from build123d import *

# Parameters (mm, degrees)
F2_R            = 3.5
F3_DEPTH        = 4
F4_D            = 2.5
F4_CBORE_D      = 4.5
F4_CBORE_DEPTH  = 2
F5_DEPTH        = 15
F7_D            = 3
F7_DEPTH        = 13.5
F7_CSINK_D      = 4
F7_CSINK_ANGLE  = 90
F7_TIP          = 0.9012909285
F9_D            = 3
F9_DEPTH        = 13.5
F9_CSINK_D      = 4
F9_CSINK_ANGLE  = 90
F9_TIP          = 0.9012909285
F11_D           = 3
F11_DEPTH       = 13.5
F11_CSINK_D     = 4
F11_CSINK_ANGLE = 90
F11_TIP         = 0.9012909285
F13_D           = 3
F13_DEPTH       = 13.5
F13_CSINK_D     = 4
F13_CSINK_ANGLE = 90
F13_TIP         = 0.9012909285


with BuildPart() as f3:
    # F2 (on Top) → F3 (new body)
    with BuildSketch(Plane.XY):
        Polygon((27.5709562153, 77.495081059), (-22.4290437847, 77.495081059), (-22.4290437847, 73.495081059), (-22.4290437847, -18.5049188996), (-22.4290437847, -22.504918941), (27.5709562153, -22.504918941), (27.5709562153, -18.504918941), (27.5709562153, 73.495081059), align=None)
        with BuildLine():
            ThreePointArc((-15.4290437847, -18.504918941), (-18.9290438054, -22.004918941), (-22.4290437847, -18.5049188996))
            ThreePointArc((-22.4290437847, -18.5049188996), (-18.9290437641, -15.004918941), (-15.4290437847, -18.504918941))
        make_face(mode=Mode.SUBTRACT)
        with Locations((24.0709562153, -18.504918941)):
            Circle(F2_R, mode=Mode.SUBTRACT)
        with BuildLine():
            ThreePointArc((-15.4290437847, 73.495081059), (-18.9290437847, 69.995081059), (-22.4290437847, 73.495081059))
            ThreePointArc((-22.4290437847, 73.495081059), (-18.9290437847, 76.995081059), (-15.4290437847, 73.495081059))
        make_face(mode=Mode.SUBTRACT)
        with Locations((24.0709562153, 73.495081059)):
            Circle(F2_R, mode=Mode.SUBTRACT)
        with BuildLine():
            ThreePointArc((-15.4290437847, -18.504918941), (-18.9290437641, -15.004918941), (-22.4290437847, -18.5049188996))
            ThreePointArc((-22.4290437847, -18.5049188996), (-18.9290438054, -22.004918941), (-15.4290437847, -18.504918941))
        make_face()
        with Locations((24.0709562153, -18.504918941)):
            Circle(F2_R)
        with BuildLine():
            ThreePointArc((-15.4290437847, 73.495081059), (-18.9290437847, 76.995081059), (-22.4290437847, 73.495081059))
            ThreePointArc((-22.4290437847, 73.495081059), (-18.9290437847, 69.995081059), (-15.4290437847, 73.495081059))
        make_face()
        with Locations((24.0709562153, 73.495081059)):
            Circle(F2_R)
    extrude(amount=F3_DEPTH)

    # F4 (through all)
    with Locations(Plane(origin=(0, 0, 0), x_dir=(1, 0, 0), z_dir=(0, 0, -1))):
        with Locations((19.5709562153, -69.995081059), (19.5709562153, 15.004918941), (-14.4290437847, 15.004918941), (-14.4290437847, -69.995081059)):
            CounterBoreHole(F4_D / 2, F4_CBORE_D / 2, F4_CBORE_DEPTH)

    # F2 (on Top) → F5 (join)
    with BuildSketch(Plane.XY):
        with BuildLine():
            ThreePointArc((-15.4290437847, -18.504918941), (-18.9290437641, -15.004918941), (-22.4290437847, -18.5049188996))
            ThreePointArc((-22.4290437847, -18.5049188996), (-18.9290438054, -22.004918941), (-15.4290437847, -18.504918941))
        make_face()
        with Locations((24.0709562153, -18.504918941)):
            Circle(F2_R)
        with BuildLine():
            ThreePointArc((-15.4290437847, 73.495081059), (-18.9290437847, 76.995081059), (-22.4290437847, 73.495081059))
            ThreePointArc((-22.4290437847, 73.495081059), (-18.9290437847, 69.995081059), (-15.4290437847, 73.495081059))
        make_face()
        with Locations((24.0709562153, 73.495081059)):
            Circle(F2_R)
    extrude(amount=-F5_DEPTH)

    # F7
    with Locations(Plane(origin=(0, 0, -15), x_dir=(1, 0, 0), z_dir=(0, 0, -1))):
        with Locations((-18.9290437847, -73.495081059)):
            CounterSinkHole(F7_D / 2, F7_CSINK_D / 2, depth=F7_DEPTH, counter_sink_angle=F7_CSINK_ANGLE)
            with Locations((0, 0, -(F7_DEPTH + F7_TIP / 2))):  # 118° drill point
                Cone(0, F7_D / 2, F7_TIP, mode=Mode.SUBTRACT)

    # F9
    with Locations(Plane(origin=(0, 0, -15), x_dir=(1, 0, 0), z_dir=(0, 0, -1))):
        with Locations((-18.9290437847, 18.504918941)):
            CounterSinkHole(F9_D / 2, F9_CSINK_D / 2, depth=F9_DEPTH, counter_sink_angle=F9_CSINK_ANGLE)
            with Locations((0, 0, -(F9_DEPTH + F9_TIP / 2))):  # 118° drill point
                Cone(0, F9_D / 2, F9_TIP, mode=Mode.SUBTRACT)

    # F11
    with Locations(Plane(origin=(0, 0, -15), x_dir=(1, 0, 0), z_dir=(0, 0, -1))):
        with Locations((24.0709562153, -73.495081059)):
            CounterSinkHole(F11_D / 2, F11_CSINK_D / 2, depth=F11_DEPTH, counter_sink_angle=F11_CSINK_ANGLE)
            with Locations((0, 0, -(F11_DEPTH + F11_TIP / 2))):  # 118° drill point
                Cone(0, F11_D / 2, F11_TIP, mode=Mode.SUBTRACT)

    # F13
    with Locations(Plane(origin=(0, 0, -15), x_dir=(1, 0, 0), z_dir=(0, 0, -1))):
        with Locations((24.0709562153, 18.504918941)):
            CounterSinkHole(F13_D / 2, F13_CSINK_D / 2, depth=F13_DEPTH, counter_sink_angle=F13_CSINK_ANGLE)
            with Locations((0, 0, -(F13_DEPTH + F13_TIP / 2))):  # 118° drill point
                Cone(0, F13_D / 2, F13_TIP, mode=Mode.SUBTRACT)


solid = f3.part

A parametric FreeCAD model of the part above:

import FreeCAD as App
import Part
import Sketcher

V = App.Vector
Q = App.Units.Quantity


def add_polygon(sketch, points):
    """Adds a closed chain of lines whose ends are joined by coincident constraints."""
    first, n = sketch.GeometryCount, len(points)
    for a, b in zip(points, points[1:] + points[:1]):
        sketch.addGeometry(Part.LineSegment(App.Vector(*a, 0), App.Vector(*b, 0)), False)
    for i in range(n):
        sketch.addConstraint(Sketcher.Constraint("Coincident", first + i, 2, first + (i + 1) % n, 1))

doc = App.newDocument("Part")
body = doc.addObject("PartDesign::Body", "Body")

# Sketch on XY plane
sketch1 = body.newObject("Sketcher::SketchObject", "Sketch")
sketch1.AttachmentSupport = (doc.getObject("XY_Plane"), [""])
sketch1.MapMode = "FlatFace"
add_polygon(sketch1, [(28, -23), (28, 77), (-22, 77), (-22, -23)])  # lines 0-3
sketch1.addConstraint(Sketcher.Constraint("Vertical", 0))
sketch1.addConstraint(Sketcher.Constraint("Horizontal", 1))
sketch1.addConstraint(Sketcher.Constraint("Vertical", 2))
sketch1.addConstraint(Sketcher.Constraint("Horizontal", 3))
sketch1.addConstraint(Sketcher.Constraint("DistanceX", 1, 2, 1, 1, Q("50 mm")))
sketch1.addConstraint(Sketcher.Constraint("DistanceY", 0, 1, 0, 2, Q("100 mm")))
sketch1.addConstraint(Sketcher.Constraint("DistanceY", -1, 1, 0, 2, Q("77.495081 mm")))
sketch1.addConstraint(Sketcher.Constraint("DistanceX", -1, 1, 0, 2, Q("27.570956 mm")))
pad1 = body.newObject("PartDesign::Pad", "Pad")
pad1.Profile = sketch1
pad1.Length = 4

# Sketch on XY plane
sketch2 = body.newObject("Sketcher::SketchObject", "Sketch001")
sketch2.AttachmentSupport = (doc.getObject("XY_Plane"), [""])
sketch2.MapMode = "FlatFace"
sketch2.addGeometry(Part.Circle(V(19.6, 70, 0), V(0, 0, 1), 1.2), False)
sketch2.addGeometry(Part.Circle(V(19.6, -15, 0), V(0, 0, 1), 1.2), False)
sketch2.addGeometry(Part.Circle(V(-14.4, -15, 0), V(0, 0, 1), 1.2), False)
sketch2.addGeometry(Part.Circle(V(-14.4, 70, 0), V(0, 0, 1), 1.2), False)
sketch2.addConstraint(Sketcher.Constraint("Equal", 0, 1))
sketch2.addConstraint(Sketcher.Constraint("Equal", 1, 2))
sketch2.addConstraint(Sketcher.Constraint("Equal", 2, 3))
sketch2.addConstraint(Sketcher.Constraint("Horizontal", 1, 3, 2, 3))
sketch2.addConstraint(Sketcher.Constraint("Horizontal", 0, 3, 3, 3))
sketch2.addConstraint(Sketcher.Constraint("Vertical", 0, 3, 1, 3))
sketch2.addConstraint(Sketcher.Constraint("Vertical", 2, 3, 3, 3))
sketch2.addConstraint(Sketcher.Constraint("Diameter", 0, Q("2.5 mm")))
sketch2.addConstraint(Sketcher.Constraint("DistanceY", 1, 3, 0, 3, Q("85 mm")))
sketch2.addConstraint(Sketcher.Constraint("DistanceX", 2, 3, 1, 3, Q("34 mm")))
sketch2.addConstraint(Sketcher.Constraint("DistanceY", -1, 1, 0, 3, Q("69.995081 mm")))
sketch2.addConstraint(Sketcher.Constraint("DistanceX", -1, 1, 0, 3, Q("19.570956 mm")))
doc.recompute()
hole = body.newObject("PartDesign::Hole", "Hole")
hole.Profile = sketch2
hole.ThreadType = "None"
hole.Diameter = 2.5
hole.DepthType = "ThroughAll"
hole.HoleCutType = "Counterbore"
hole.HoleCutDiameter = 4.5
hole.HoleCutDepth = 2
hole.Reversed = True

# Sketch on XY plane
sketch3 = body.newObject("Sketcher::SketchObject", "Sketch002")
sketch3.AttachmentSupport = (doc.getObject("XY_Plane"), [""])
sketch3.MapMode = "FlatFace"
sketch3.addGeometry(Part.Circle(V(-18.9, -18.5, 0), V(0, 0, 1), 3.5), False)
sketch3.addGeometry(Part.Circle(V(24.1, -18.5, 0), V(0, 0, 1), 3.5), False)
sketch3.addGeometry(Part.Circle(V(-18.9, 73.5, 0), V(0, 0, 1), 3.5), False)
sketch3.addGeometry(Part.Circle(V(24.1, 73.5, 0), V(0, 0, 1), 3.5), False)
sketch3.addConstraint(Sketcher.Constraint("Equal", 0, 1))
sketch3.addConstraint(Sketcher.Constraint("Equal", 1, 2))
sketch3.addConstraint(Sketcher.Constraint("Equal", 2, 3))
sketch3.addConstraint(Sketcher.Constraint("Horizontal", 0, 3, 1, 3))
sketch3.addConstraint(Sketcher.Constraint("Horizontal", 2, 3, 3, 3))
sketch3.addConstraint(Sketcher.Constraint("Vertical", 0, 3, 2, 3))
sketch3.addConstraint(Sketcher.Constraint("Vertical", 1, 3, 3, 3))
sketch3.addConstraint(Sketcher.Constraint("Diameter", 0, Q("7 mm")))
sketch3.addConstraint(Sketcher.Constraint("DistanceX", 0, 3, 1, 3, Q("43 mm")))
sketch3.addConstraint(Sketcher.Constraint("DistanceY", 0, 3, 2, 3, Q("92 mm")))
sketch3.addConstraint(Sketcher.Constraint("DistanceY", 0, 3, -1, 1, Q("18.504919 mm")))
sketch3.addConstraint(Sketcher.Constraint("DistanceX", 0, 3, -1, 1, Q("18.929044 mm")))
pad2 = body.newObject("PartDesign::Pad", "Pad001")
pad2.Profile = sketch3
pad2.Length = 15
pad2.Reversed = True

# Sketch on XY plane
sketch4 = body.newObject("Sketcher::SketchObject", "Sketch003")
sketch4.AttachmentSupport = (doc.getObject("XY_Plane"), [""])
sketch4.MapMode = "FlatFace"
sketch4.AttachmentOffset = App.Placement(V(0, 0, -15), App.Rotation())
sketch4.addGeometry(Part.Circle(V(-18.9, 73.5, 0), V(0, 0, 1), 1.5), False)
sketch4.addConstraint(Sketcher.Constraint("Diameter", 0, Q("3 mm")))
sketch4.addConstraint(Sketcher.Constraint("DistanceY", -1, 1, 0, 3, Q("73.495081 mm")))
sketch4.addConstraint(Sketcher.Constraint("DistanceX", 0, 3, -1, 1, Q("18.929044 mm")))
doc.recompute()
hole2 = body.newObject("PartDesign::Hole", "Hole001")
hole2.Profile = sketch4
hole2.ThreadType = "None"
hole2.Diameter = 3
hole2.DepthType = "Dimension"
hole2.Depth = 13.5
hole2.DrillPoint = "Angled"
hole2.DrillPointAngle = 118
hole2.HoleCutType = "Countersink"
hole2.HoleCutDiameter = 4
hole2.HoleCutCountersinkAngle = 90
hole2.Reversed = True

# Sketch on XY plane
sketch5 = body.newObject("Sketcher::SketchObject", "Sketch004")
sketch5.AttachmentSupport = (doc.getObject("XY_Plane"), [""])
sketch5.MapMode = "FlatFace"
sketch5.AttachmentOffset = App.Placement(V(0, 0, -15), App.Rotation())
sketch5.addGeometry(Part.Circle(V(-18.9, -18.5, 0), V(0, 0, 1), 1.5), False)
sketch5.addConstraint(Sketcher.Constraint("Diameter", 0, Q("3 mm")))
sketch5.addConstraint(Sketcher.Constraint("DistanceY", 0, 3, -1, 1, Q("18.504919 mm")))
sketch5.addConstraint(Sketcher.Constraint("DistanceX", 0, 3, -1, 1, Q("18.929044 mm")))
doc.recompute()
hole3 = body.newObject("PartDesign::Hole", "Hole002")
hole3.Profile = sketch5
hole3.ThreadType = "None"
hole3.Diameter = 3
hole3.DepthType = "Dimension"
hole3.Depth = 13.5
hole3.DrillPoint = "Angled"
hole3.DrillPointAngle = 118
hole3.HoleCutType = "Countersink"
hole3.HoleCutDiameter = 4
hole3.HoleCutCountersinkAngle = 90
hole3.Reversed = True

# Sketch on XY plane
sketch6 = body.newObject("Sketcher::SketchObject", "Sketch005")
sketch6.AttachmentSupport = (doc.getObject("XY_Plane"), [""])
sketch6.MapMode = "FlatFace"
sketch6.AttachmentOffset = App.Placement(V(0, 0, -15), App.Rotation())
sketch6.addGeometry(Part.Circle(V(24.1, 73.5, 0), V(0, 0, 1), 1.5), False)
sketch6.addConstraint(Sketcher.Constraint("Diameter", 0, Q("3 mm")))
sketch6.addConstraint(Sketcher.Constraint("DistanceY", -1, 1, 0, 3, Q("73.495081 mm")))
sketch6.addConstraint(Sketcher.Constraint("DistanceX", -1, 1, 0, 3, Q("24.070956 mm")))
doc.recompute()
hole4 = body.newObject("PartDesign::Hole", "Hole003")
hole4.Profile = sketch6
hole4.ThreadType = "None"
hole4.Diameter = 3
hole4.DepthType = "Dimension"
hole4.Depth = 13.5
hole4.DrillPoint = "Angled"
hole4.DrillPointAngle = 118
hole4.HoleCutType = "Countersink"
hole4.HoleCutDiameter = 4
hole4.HoleCutCountersinkAngle = 90
hole4.Reversed = True

# Sketch on XY plane
sketch7 = body.newObject("Sketcher::SketchObject", "Sketch006")
sketch7.AttachmentSupport = (doc.getObject("XY_Plane"), [""])
sketch7.MapMode = "FlatFace"
sketch7.AttachmentOffset = App.Placement(V(0, 0, -15), App.Rotation())
sketch7.addGeometry(Part.Circle(V(24.1, -18.5, 0), V(0, 0, 1), 1.5), False)
sketch7.addConstraint(Sketcher.Constraint("Diameter", 0, Q("3 mm")))
sketch7.addConstraint(Sketcher.Constraint("DistanceY", 0, 3, -1, 1, Q("18.504919 mm")))
sketch7.addConstraint(Sketcher.Constraint("DistanceX", -1, 1, 0, 3, Q("24.070956 mm")))
doc.recompute()
hole5 = body.newObject("PartDesign::Hole", "Hole004")
hole5.Profile = sketch7
hole5.ThreadType = "None"
hole5.Diameter = 3
hole5.DepthType = "Dimension"
hole5.Depth = 13.5
hole5.DrillPoint = "Angled"
hole5.DrillPointAngle = 118
hole5.HoleCutType = "Countersink"
hole5.HoleCutDiameter = 4
hole5.HoleCutCountersinkAngle = 90
hole5.Reversed = True

doc.recompute()
